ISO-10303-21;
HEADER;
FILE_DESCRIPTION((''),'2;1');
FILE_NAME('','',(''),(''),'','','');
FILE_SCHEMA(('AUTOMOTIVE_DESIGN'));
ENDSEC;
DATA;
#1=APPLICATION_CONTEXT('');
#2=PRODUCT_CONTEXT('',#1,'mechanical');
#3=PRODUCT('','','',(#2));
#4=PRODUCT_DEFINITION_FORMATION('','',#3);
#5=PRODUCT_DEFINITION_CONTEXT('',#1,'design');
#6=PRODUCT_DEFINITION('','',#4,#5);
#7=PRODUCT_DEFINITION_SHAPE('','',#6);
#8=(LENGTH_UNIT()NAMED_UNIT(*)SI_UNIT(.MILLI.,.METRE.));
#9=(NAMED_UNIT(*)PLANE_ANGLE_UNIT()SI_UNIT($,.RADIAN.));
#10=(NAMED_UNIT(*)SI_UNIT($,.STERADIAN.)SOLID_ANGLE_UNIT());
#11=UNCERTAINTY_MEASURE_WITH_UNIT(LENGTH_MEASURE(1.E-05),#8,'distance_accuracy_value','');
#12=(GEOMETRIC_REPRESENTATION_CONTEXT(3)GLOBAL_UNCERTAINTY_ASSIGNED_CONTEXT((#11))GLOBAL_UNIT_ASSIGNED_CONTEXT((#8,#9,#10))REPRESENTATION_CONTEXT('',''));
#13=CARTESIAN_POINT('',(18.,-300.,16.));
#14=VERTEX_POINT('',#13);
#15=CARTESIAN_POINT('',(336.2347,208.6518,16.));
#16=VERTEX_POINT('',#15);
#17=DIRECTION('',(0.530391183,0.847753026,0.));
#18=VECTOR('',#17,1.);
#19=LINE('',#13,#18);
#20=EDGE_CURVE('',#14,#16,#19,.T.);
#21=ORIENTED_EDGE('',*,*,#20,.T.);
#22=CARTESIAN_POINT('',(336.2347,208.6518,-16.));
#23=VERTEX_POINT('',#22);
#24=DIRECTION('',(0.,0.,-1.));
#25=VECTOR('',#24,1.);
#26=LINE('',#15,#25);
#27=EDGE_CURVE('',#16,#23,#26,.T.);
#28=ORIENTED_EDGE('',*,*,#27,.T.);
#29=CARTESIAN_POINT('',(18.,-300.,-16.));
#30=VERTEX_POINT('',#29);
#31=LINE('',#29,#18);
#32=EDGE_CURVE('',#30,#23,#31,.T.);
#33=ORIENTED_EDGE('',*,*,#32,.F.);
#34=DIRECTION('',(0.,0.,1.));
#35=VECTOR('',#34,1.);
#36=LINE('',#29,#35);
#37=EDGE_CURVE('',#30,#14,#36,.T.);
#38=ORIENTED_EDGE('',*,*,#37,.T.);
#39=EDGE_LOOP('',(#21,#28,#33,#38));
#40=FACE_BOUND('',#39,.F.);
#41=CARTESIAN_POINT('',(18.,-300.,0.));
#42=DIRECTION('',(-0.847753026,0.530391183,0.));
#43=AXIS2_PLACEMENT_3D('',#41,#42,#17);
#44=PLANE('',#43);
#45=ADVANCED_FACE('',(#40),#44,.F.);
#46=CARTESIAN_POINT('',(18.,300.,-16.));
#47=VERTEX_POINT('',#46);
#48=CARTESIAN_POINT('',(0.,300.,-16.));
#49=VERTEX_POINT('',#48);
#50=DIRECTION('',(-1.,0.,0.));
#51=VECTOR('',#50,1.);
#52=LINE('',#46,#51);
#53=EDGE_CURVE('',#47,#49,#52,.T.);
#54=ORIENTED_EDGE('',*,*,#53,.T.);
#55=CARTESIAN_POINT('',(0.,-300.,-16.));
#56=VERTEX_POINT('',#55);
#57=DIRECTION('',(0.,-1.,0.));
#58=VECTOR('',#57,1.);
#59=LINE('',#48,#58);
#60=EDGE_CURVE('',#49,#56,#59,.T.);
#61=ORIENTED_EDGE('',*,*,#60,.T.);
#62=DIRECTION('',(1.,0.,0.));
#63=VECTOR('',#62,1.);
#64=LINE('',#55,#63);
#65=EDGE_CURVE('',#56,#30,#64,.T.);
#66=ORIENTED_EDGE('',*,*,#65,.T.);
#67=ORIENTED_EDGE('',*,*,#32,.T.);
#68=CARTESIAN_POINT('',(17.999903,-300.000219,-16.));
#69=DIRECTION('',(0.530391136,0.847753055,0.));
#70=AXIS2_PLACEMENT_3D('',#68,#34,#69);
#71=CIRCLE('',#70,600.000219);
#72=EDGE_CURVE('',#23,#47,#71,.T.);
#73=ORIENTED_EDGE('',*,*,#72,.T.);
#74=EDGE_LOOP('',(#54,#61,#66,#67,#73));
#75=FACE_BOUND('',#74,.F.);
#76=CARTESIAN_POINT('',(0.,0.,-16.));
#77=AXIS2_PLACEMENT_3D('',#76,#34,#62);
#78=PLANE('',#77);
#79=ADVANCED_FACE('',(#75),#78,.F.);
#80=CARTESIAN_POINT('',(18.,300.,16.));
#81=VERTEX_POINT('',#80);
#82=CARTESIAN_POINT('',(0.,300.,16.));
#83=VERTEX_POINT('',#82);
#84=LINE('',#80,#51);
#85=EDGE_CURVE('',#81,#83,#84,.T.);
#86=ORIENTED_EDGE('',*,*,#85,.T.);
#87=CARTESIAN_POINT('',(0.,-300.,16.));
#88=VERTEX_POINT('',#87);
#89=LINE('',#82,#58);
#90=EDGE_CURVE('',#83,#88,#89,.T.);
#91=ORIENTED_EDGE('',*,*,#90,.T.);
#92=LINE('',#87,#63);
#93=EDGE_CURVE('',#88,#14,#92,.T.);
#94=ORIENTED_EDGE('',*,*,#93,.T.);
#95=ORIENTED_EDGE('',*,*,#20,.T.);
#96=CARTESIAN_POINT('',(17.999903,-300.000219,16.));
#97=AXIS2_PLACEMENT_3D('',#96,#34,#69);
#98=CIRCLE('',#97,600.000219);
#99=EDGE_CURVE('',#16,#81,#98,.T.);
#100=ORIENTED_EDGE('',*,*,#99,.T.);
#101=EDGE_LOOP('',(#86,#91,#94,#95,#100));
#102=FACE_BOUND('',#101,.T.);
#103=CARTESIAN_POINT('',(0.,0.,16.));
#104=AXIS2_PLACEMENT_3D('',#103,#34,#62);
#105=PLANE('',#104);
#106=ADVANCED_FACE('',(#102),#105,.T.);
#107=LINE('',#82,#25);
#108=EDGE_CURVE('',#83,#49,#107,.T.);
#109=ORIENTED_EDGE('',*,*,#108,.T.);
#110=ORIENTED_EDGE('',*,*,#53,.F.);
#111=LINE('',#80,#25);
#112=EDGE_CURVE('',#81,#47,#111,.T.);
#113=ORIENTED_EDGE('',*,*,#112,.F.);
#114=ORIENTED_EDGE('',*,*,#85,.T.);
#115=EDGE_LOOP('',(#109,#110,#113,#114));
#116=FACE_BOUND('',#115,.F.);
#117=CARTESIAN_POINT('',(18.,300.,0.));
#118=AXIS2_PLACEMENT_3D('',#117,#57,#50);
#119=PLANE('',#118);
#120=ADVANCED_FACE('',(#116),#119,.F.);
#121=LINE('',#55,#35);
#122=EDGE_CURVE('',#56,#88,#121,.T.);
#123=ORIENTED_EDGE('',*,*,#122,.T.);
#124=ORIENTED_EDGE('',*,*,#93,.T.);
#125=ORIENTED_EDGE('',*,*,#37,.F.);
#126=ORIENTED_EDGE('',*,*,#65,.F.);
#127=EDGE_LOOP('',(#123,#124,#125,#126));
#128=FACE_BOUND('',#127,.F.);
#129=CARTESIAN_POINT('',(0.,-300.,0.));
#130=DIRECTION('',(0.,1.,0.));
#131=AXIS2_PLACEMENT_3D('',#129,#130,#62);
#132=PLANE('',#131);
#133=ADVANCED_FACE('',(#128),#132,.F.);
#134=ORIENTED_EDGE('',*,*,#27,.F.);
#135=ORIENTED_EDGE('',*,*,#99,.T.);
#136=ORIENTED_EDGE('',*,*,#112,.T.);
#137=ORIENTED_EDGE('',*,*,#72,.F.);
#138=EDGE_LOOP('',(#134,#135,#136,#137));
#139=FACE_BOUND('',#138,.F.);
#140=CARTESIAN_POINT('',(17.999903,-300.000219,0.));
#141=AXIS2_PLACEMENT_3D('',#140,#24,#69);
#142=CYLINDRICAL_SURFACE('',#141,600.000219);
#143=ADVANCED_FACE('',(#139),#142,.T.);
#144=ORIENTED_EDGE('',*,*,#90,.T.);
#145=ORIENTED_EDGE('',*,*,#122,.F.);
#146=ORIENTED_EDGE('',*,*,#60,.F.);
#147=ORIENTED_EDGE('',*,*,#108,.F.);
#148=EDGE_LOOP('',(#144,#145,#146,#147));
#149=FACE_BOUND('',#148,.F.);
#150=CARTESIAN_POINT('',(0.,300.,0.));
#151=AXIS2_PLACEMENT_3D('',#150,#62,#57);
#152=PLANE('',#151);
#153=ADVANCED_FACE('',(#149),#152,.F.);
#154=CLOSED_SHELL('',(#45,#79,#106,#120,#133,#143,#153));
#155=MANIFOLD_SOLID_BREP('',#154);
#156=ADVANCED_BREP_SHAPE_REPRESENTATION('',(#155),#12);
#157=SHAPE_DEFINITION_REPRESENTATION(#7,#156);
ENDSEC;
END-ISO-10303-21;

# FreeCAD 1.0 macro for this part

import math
import FreeCAD as App
import Part
import Sketcher
Q = App.Units.Quantity

doc = App.newDocument("Part")
body = doc.addObject("PartDesign::Body", "Body")

# Sketch on XY plane
sketch1 = body.newObject("Sketcher::SketchObject", "Sketch")
sketch1.AttachmentSupport = (doc.getObject("XY_Plane"), [""])
sketch1.MapMode = "FlatFace"
sketch1.addGeometry(Part.LineSegment(App.Vector(0, 300, 0), App.Vector(0, -300, 0)), False)
sketch1.addGeometry(Part.LineSegment(App.Vector(0, -300, 0), App.Vector(18, -300, 0)), False)
sketch1.addGeometry(Part.LineSegment(App.Vector(18, -300, 0), App.Vector(336, 209, 0)), False)
sketch1.addGeometry(Part.ArcOfCircle(Part.Circle(App.Vector(18, -300, 0), App.Vector(0, 0, 1), 600), math.radians(58), math.radians(90)), False)
sketch1.addGeometry(Part.LineSegment(App.Vector(18, 300, 0), App.Vector(0, 300, 0)), False)
sketch1.addConstraint(Sketcher.Constraint("Coincident", 0, 2, 1, 1))
sketch1.addConstraint(Sketcher.Constraint("Coincident", 1, 2, 2, 1))
sketch1.addConstraint(Sketcher.Constraint("Coincident", 2, 2, 3, 1))
sketch1.addConstraint(Sketcher.Constraint("Tangent", 3, 2, 4, 1))
sketch1.addConstraint(Sketcher.Constraint("Coincident", 4, 2, 0, 1))
sketch1.addConstraint(Sketcher.Constraint("Vertical", 0))
sketch1.addConstraint(Sketcher.Constraint("Horizontal", 1))
sketch1.addConstraint(Sketcher.Constraint("Horizontal", 4))
sketch1.addConstraint(Sketcher.Constraint("Coincident", 1, 2, 3, 3))
sketch1.addConstraint(Sketcher.Constraint("Symmetric", 0, 2, 4, 2, -1, 1))
sketch1.addConstraint(Sketcher.Constraint("Radius", 3, Q("600 mm")))
sketch1.addConstraint(Sketcher.Constraint("DistanceX", 1, 1, 1, 2, Q("18 mm")))
sketch1.addConstraint(Sketcher.Constraint("DistanceX", -1, 1, 2, 2, Q("336.2347 mm")))
pad1 = body.newObject("PartDesign::Pad", "Pad")
pad1.Profile = sketch1
pad1.Length = 32
pad1.Midplane = True

doc.recompute()
